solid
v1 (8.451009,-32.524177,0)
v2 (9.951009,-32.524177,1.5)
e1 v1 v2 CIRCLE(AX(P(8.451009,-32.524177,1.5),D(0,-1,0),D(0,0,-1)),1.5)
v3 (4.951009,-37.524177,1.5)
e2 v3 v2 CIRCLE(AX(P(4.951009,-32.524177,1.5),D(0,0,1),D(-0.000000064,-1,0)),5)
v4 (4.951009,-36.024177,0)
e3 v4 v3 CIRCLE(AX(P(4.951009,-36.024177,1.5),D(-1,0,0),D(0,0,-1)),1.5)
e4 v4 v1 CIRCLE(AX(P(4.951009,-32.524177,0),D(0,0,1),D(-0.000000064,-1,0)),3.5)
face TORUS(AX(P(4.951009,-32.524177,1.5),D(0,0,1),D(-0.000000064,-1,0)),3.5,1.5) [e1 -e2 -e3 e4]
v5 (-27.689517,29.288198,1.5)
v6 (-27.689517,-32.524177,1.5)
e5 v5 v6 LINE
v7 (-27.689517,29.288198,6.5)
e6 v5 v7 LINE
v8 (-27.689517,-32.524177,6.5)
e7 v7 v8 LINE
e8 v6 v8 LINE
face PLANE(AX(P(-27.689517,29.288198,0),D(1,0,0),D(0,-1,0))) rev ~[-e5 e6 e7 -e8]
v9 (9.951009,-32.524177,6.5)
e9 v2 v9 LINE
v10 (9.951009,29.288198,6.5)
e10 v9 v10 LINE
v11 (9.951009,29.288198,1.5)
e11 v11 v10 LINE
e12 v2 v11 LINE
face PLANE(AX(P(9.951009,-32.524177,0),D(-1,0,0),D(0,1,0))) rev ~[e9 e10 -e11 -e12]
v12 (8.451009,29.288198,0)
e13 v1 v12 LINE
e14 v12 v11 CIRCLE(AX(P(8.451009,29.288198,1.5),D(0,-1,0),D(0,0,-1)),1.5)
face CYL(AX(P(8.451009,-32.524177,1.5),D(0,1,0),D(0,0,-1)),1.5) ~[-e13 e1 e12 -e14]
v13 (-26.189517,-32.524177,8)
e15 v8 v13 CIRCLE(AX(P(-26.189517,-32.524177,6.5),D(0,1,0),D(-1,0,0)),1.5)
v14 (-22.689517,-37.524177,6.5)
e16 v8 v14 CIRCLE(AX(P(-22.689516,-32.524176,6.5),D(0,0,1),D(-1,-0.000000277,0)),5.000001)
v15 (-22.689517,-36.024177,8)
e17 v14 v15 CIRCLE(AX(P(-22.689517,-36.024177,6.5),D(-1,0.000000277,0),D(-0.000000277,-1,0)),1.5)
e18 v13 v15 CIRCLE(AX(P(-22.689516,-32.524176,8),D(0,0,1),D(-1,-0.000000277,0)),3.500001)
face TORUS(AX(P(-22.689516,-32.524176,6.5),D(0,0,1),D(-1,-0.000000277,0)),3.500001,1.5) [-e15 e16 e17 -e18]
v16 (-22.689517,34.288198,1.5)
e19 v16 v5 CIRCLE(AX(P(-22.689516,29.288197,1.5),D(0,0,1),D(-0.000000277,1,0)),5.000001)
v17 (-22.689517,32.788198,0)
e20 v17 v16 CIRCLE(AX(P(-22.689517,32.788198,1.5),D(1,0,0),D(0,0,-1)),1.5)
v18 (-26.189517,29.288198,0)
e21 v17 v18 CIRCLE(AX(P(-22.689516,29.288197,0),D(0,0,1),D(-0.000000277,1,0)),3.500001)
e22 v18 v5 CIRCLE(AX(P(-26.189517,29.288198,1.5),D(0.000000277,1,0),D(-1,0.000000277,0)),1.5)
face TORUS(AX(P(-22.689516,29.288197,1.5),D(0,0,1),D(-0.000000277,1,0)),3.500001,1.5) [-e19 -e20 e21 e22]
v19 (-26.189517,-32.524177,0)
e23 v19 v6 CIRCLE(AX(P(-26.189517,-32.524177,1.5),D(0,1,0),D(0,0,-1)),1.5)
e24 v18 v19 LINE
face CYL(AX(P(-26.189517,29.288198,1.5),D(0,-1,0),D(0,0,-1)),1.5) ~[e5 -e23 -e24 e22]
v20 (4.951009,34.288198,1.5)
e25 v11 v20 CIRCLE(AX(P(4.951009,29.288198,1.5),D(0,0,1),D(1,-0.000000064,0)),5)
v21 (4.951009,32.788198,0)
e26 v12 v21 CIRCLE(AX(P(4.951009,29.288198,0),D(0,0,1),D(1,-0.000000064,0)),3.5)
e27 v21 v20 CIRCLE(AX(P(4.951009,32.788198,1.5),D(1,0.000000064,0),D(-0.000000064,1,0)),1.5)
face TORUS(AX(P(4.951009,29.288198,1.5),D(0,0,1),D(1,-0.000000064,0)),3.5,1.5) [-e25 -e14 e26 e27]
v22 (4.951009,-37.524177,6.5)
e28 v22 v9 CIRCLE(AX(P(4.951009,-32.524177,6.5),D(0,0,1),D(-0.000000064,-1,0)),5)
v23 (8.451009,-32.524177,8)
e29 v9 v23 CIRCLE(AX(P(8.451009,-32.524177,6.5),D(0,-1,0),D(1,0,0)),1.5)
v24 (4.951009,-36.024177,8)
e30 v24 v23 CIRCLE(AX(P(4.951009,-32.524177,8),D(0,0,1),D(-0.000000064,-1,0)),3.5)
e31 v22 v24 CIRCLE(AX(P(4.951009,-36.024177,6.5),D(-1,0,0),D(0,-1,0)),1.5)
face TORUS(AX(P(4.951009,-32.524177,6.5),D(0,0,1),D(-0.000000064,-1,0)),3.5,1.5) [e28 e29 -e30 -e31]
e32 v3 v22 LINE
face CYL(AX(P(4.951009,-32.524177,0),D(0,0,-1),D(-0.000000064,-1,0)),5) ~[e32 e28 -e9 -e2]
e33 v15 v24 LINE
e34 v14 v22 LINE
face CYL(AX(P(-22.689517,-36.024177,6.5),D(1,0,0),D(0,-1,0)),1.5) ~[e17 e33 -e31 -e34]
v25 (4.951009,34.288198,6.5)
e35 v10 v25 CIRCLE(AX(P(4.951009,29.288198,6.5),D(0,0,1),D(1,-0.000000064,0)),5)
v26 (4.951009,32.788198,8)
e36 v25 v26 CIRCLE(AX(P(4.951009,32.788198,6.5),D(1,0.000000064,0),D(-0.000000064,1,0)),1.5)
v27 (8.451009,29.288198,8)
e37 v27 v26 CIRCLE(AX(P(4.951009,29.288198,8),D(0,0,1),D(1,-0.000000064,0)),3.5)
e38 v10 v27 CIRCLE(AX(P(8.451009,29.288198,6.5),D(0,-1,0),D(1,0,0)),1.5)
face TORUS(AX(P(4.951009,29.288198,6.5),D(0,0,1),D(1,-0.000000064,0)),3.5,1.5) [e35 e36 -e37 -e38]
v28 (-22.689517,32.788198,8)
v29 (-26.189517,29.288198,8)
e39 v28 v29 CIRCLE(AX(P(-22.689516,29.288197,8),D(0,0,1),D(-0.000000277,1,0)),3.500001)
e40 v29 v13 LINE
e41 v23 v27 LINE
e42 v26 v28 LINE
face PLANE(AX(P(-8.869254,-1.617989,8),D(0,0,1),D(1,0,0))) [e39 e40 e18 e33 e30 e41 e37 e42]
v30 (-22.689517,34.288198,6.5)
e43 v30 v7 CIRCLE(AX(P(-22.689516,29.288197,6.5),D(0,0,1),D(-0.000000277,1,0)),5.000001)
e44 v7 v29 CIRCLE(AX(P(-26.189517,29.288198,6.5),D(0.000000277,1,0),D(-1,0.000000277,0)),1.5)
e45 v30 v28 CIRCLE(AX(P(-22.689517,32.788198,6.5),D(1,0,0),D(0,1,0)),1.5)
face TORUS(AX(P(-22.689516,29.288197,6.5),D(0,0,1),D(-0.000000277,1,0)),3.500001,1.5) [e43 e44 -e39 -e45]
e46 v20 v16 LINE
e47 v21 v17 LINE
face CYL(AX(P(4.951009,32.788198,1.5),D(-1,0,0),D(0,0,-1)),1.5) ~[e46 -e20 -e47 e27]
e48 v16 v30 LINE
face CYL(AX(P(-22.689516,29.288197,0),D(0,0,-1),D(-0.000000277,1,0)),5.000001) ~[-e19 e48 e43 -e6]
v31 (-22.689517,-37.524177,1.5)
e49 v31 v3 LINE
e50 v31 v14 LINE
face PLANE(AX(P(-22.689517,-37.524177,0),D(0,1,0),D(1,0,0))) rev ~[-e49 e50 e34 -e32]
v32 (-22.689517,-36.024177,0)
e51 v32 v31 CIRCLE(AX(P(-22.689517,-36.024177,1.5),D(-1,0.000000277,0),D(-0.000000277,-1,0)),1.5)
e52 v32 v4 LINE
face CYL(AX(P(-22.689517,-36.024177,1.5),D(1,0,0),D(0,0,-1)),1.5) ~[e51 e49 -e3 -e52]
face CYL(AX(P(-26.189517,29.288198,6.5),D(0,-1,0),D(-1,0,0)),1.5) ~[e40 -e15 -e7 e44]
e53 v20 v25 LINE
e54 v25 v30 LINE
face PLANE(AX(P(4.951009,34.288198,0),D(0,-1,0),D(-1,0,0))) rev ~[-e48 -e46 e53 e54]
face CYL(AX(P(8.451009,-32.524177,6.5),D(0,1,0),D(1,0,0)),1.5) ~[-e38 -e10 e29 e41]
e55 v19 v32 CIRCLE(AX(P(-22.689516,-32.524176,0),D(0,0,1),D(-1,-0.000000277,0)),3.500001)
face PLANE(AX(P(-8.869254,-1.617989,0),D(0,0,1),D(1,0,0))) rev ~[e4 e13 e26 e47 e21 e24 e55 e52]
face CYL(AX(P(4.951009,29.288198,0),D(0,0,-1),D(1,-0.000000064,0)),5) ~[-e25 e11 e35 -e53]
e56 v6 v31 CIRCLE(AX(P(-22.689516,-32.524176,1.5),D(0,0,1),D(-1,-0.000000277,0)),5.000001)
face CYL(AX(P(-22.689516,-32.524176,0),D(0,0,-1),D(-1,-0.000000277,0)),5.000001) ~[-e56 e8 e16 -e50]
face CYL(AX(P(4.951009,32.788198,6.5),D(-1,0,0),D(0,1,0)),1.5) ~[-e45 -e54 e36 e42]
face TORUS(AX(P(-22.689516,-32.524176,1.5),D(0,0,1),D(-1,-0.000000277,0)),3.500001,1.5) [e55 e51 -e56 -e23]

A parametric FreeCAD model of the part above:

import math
import FreeCAD as App
import Part
import Sketcher

V = App.Vector
Q = App.Units.Quantity


def edges_at(feature, points):
    """Names of the edges that pass closest to the given points."""
    edges = feature.Shape.Edges
    near = lambda p: min(range(len(edges)), key=lambda i: edges[i].distToShape(Part.Vertex(*p))[0])
    return sorted({f"Edge{near(p) + 1}" for p in points})

doc = App.newDocument("Part")
body = doc.addObject("PartDesign::Body", "Body")

# Sketch on XY plane
sketch1 = body.newObject("Sketcher::SketchObject", "Sketch")
sketch1.AttachmentSupport = (doc.getObject("XY_Plane"), [""])
sketch1.MapMode = "FlatFace"
sketch1.addGeometry(Part.LineSegment(V(5, 34.3, 0), V(-22.7, 34.3, 0)), False)
sketch1.addGeometry(Part.ArcOfCircle(Part.Circle(V(-22.7, 29.3, 0), V(0, 0, 1), 5), math.radians(90), math.radians(180)), False)
sketch1.addGeometry(Part.LineSegment(V(-27.7, 29.3, 0), V(-27.7, -32.5, 0)), False)
sketch1.addGeometry(Part.ArcOfCircle(Part.Circle(V(-22.7, -32.5, 0), V(0, 0, 1), 5), math.radians(-180), math.radians(-90)), False)
sketch1.addGeometry(Part.LineSegment(V(-22.7, -37.5, 0), V(5, -37.5, 0)), False)
sketch1.addGeometry(Part.ArcOfCircle(Part.Circle(V(5, -32.5, 0), V(0, 0, 1), 5), math.radians(-90), math.radians(0)), False)
sketch1.addGeometry(Part.LineSegment(V(10, -32.5, 0), V(10, 29.3, 0)), False)
sketch1.addGeometry(Part.ArcOfCircle(Part.Circle(V(5, 29.3, 0), V(0, 0, 1), 5), math.radians(0), math.radians(90)), False)
sketch1.addConstraint(Sketcher.Constraint("Tangent", 0, 2, 1, 1))
sketch1.addConstraint(Sketcher.Constraint("Tangent", 1, 2, 2, 1))
sketch1.addConstraint(Sketcher.Constraint("Tangent", 2, 2, 3, 1))
sketch1.addConstraint(Sketcher.Constraint("Tangent", 3, 2, 4, 1))
sketch1.addConstraint(Sketcher.Constraint("Tangent", 4, 2, 5, 1))
sketch1.addConstraint(Sketcher.Constraint("Tangent", 5, 2, 6, 1))
sketch1.addConstraint(Sketcher.Constraint("Tangent", 6, 2, 7, 1))
sketch1.addConstraint(Sketcher.Constraint("Tangent", 7, 2, 0, 1))
sketch1.addConstraint(Sketcher.Constraint("Horizontal", 0))
sketch1.addConstraint(Sketcher.Constraint("Vertical", 2))
sketch1.addConstraint(Sketcher.Constraint("Horizontal", 4))
sketch1.addConstraint(Sketcher.Constraint("Vertical", 6))
sketch1.addConstraint(Sketcher.Constraint("Equal", 1, 3))
sketch1.addConstraint(Sketcher.Constraint("Equal", 3, 5))
sketch1.addConstraint(Sketcher.Constraint("Equal", 5, 7))
sketch1.addConstraint(Sketcher.Constraint("Radius", 1, Q("5.000001 mm")))
sketch1.addConstraint(Sketcher.Constraint("DistanceY", -1, 1, 7, 3, Q("29.288198 mm")))
sketch1.addConstraint(Sketcher.Constraint("DistanceX", 0, 2, 0, 1, Q("27.640526 mm")))
sketch1.addConstraint(Sketcher.Constraint("DistanceY", 2, 2, 2, 1, Q("61.812375 mm")))
sketch1.addConstraint(Sketcher.Constraint("DistanceX", -1, 1, 5, 3, Q("4.951009 mm")))
pad1 = body.newObject("PartDesign::Pad", "Pad")
pad1.Profile = sketch1
pad1.Length = 8
doc.recompute()

fillet = body.newObject("PartDesign::Fillet", "Fillet")
fillet.Base = (pad1, edges_at(pad1, [
    (9.951, -1.618, 8),
    (8.487, 32.824, 8),
    (-8.869, 34.288, 8),
    (-26.225, 32.824, 8),
    (-27.69, -1.618, 8),
    (-26.225, -36.06, 8),
    (-8.869, -37.524, 8),
    (8.487, -36.06, 8),
]))
fillet.Radius = 1.5
doc.recompute()

fillet2 = body.newObject("PartDesign::Fillet", "Fillet001")
fillet2.Base = (fillet, edges_at(fillet, [
    (9.951, -1.618, 0),
    (8.487, 32.824, 0),
    (-8.869, 34.288, 0),
    (-26.225, 32.824, 0),
    (-27.69, -1.618, 0),
    (-26.225, -36.06, 0),
    (-8.869, -37.524, 0),
    (8.487, -36.06, 0),
]))
fillet2.Radius = 1.5

doc.recompute()
